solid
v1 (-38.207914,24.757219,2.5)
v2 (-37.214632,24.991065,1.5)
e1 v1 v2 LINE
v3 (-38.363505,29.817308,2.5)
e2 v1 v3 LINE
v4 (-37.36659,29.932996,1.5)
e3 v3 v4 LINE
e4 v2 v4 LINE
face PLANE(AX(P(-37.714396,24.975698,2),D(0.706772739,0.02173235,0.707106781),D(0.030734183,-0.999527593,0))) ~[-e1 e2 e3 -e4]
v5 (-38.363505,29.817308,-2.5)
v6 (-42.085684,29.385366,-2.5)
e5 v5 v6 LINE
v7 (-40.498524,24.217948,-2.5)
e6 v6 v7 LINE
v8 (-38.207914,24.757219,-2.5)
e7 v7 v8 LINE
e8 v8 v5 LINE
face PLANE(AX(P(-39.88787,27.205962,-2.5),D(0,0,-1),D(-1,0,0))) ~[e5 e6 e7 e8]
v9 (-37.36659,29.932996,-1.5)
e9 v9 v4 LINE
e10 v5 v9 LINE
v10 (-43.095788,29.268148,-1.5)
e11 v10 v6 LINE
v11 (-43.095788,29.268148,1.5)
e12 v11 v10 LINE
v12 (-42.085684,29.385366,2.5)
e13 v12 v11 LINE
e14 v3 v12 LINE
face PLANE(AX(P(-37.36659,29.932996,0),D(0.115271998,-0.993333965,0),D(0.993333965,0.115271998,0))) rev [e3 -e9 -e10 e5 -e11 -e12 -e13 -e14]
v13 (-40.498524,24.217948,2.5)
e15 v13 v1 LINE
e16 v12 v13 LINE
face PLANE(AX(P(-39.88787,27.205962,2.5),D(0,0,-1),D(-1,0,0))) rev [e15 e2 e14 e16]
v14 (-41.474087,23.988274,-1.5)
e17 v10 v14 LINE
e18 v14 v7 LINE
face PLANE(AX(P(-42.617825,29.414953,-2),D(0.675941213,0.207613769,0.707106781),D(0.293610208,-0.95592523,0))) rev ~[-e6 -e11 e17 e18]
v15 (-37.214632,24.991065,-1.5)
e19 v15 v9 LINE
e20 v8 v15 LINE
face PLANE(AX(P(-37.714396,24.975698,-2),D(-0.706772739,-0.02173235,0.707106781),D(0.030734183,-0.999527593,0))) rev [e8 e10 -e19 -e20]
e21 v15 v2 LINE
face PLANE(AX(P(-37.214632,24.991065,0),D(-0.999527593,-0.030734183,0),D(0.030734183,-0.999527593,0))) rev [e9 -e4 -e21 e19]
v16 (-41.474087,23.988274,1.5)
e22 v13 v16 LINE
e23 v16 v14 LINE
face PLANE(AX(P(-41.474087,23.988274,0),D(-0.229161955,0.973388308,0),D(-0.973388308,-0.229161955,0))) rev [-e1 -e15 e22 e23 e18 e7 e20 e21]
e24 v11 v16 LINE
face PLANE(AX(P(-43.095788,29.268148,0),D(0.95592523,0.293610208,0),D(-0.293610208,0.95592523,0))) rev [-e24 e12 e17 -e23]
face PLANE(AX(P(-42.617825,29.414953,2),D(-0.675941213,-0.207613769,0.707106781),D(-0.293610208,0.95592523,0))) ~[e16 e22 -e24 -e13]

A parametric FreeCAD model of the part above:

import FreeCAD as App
import Part
import Sketcher

V = App.Vector


def edges_at(feature, points):
    """Names of the edges that pass closest to the given points."""
    edges = feature.Shape.Edges
    near = lambda p: min(range(len(edges)), key=lambda i: edges[i].distToShape(Part.Vertex(*p))[0])
    return sorted({f"Edge{near(p) + 1}" for p in points})


def add_polygon(sketch, points):
    """Adds a closed chain of lines whose ends are joined by coincident constraints."""
    first, n = sketch.GeometryCount, len(points)
    for a, b in zip(points, points[1:] + points[:1]):
        sketch.addGeometry(Part.LineSegment(App.Vector(*a, 0), App.Vector(*b, 0)), False)
    for i in range(n):
        sketch.addConstraint(Sketcher.Constraint("Coincident", first + i, 2, first + (i + 1) % n, 1))

doc = App.newDocument("Part")
body = doc.addObject("PartDesign::Body", "Body")

# Sketch on XY plane
sketch1 = body.newObject("Sketcher::SketchObject", "Sketch")
sketch1.AttachmentSupport = (doc.getObject("XY_Plane"), [""])
sketch1.MapMode = "FlatFace"
add_polygon(sketch1, [(43.1, 29.3), (37.4, 29.9), (37.2, 25), (41.5, 24)])  # lines 0-3
sketch1.addConstraint([
    Sketcher.Constraint("DistanceX", 2, 2, 3, 2, 1.621701),
    Sketcher.Constraint("DistanceX", -1, 1, 0, 2, 37.36659),
    Sketcher.Constraint("DistanceY", -1, 1, 3, 2, 29.268148),
    Sketcher.Constraint("DistanceX", 1, 2, 0, 2, 0.151958),
    Sketcher.Constraint("DistanceY", 1, 2, 0, 2, 4.941931),
    Sketcher.Constraint("DistanceY", 2, 2, 1, 2, 1.002791),
    Sketcher.Constraint("Distance", 0, 5.767645),
    Sketcher.Constraint("Distance", 2, 4.375905),
])
pad1 = body.newObject("PartDesign::Pad", "Pad")
pad1.Profile = sketch1
pad1.Length = 5
pad1.Midplane = True
doc.recompute()

chamfer = body.newObject("PartDesign::Chamfer", "Chamfer")
chamfer.Base = (pad1, edges_at(pad1, [
    (42.285, 26.628, 2.5),
    (37.291, 27.462, 2.5),
    (42.285, 26.628, -2.5),
    (37.291, 27.462, -2.5),
]))
chamfer.Size = 1
body2 = doc.addObject("PartDesign::Body", "Body001")
doc.recompute()

mirroring = doc.addObject("Part::Mirroring", "Mirroring")
mirroring.Source = body
mirroring.Base = V(0, 0, 0)
mirroring.Normal = V(1, 0, 0)
body2.BaseFeature = mirroring
doc.recompute()
body.Visibility = False
mirroring.Visibility = False

doc.recompute()
